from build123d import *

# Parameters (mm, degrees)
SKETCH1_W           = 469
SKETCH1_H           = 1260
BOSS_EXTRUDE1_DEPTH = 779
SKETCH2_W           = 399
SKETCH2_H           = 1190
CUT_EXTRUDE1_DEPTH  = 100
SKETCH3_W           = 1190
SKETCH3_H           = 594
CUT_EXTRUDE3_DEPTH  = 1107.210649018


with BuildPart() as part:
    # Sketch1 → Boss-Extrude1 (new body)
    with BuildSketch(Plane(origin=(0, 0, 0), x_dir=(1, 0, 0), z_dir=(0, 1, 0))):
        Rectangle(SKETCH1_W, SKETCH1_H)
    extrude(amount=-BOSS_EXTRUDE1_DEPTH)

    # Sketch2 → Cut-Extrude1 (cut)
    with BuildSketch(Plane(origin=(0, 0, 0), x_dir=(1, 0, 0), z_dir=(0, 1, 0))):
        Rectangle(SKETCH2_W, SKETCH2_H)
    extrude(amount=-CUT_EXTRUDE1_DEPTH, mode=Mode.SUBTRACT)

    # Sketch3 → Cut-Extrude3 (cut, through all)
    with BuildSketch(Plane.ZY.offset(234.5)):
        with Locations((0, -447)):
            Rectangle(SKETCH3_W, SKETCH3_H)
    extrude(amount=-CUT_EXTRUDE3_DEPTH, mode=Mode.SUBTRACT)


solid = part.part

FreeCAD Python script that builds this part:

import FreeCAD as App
import Part
import Sketcher

V = App.Vector
Q = App.Units.Quantity

doc = App.newDocument("Part")
body = doc.addObject("PartDesign::Body", "Body")

# Sketch on XZ plane
sketch1 = body.newObject("Sketcher::SketchObject", "Sketch")
sketch1.AttachmentSupport = (doc.getObject("XZ_Plane"), [""])
sketch1.MapMode = "FlatFace"
sketch1.addGeometry(Part.LineSegment(V(-234, -630, 0), V(-234, 630, 0)), False)
sketch1.addGeometry(Part.LineSegment(V(-234, 630, 0), V(234, 630, 0)), False)
sketch1.addGeometry(Part.LineSegment(V(234, 630, 0), V(234, -630, 0)), False)
sketch1.addGeometry(Part.LineSegment(V(234, -630, 0), V(-234, -630, 0)), False)
sketch1.addConstraint(Sketcher.Constraint("Coincident", 0, 2, 1, 1))
sketch1.addConstraint(Sketcher.Constraint("Coincident", 1, 2, 2, 1))
sketch1.addConstraint(Sketcher.Constraint("Coincident", 2, 2, 3, 1))
sketch1.addConstraint(Sketcher.Constraint("Coincident", 3, 2, 0, 1))
sketch1.addConstraint(Sketcher.Constraint("Vertical", 0))
sketch1.addConstraint(Sketcher.Constraint("Horizontal", 1))
sketch1.addConstraint(Sketcher.Constraint("Vertical", 2))
sketch1.addConstraint(Sketcher.Constraint("Horizontal", 3))
sketch1.addConstraint(Sketcher.Constraint("Symmetric", 0, 2, 2, 2, -1, 1))
sketch1.addConstraint(Sketcher.Constraint("DistanceX", 1, 1, 1, 2, Q("469 mm")))
sketch1.addConstraint(Sketcher.Constraint("DistanceY", 0, 1, 0, 2, Q("1260 mm")))
pad1 = body.newObject("PartDesign::Pad", "Pad")
pad1.Profile = sketch1
pad1.Length = 779

# Sketch on XZ plane
sketch2 = body.newObject("Sketcher::SketchObject", "Sketch001")
sketch2.AttachmentSupport = (doc.getObject("XZ_Plane"), [""])
sketch2.MapMode = "FlatFace"
sketch2.addGeometry(Part.LineSegment(V(-200, -595, 0), V(-200, 595, 0)), False)
sketch2.addGeometry(Part.LineSegment(V(-200, 595, 0), V(200, 595, 0)), False)
sketch2.addGeometry(Part.LineSegment(V(200, 595, 0), V(200, -595, 0)), False)
sketch2.addGeometry(Part.LineSegment(V(200, -595, 0), V(-200, -595, 0)), False)
sketch2.addConstraint(Sketcher.Constraint("Coincident", 0, 2, 1, 1))
sketch2.addConstraint(Sketcher.Constraint("Coincident", 1, 2, 2, 1))
sketch2.addConstraint(Sketcher.Constraint("Coincident", 2, 2, 3, 1))
sketch2.addConstraint(Sketcher.Constraint("Coincident", 3, 2, 0, 1))
sketch2.addConstraint(Sketcher.Constraint("Vertical", 0))
sketch2.addConstraint(Sketcher.Constraint("Horizontal", 1))
sketch2.addConstraint(Sketcher.Constraint("Vertical", 2))
sketch2.addConstraint(Sketcher.Constraint("Horizontal", 3))
sketch2.addConstraint(Sketcher.Constraint("Symmetric", 0, 2, 2, 2, -1, 1))
sketch2.addConstraint(Sketcher.Constraint("DistanceX", 1, 1, 1, 2, Q("399 mm")))
sketch2.addConstraint(Sketcher.Constraint("DistanceY", 0, 1, 0, 2, Q("1190 mm")))
pocket1 = body.newObject("PartDesign::Pocket", "Pocket")
pocket1.Profile = sketch2
pocket1.Length = 100
pocket1.Reversed = True

# Sketch on YZ plane
sketch3 = body.newObject("Sketcher::SketchObject", "Sketch002")
sketch3.AttachmentSupport = (doc.getObject("YZ_Plane"), [""])
sketch3.MapMode = "FlatFace"
sketch3.AttachmentOffset = App.Placement(V(0, 0, -234.5), App.Rotation())
sketch3.addGeometry(Part.LineSegment(V(-150, -595, 0), V(-744, -595, 0)), False)
sketch3.addGeometry(Part.LineSegment(V(-744, -595, 0), V(-744, 595, 0)), False)
sketch3.addGeometry(Part.LineSegment(V(-744, 595, 0), V(-150, 595, 0)), False)
sketch3.addGeometry(Part.LineSegment(V(-150, 595, 0), V(-150, -595, 0)), False)
sketch3.addConstraint(Sketcher.Constraint("Coincident", 0, 2, 1, 1))
sketch3.addConstraint(Sketcher.Constraint("Coincident", 1, 2, 2, 1))
sketch3.addConstraint(Sketcher.Constraint("Coincident", 2, 2, 3, 1))
sketch3.addConstraint(Sketcher.Constraint("Coincident", 3, 2, 0, 1))
sketch3.addConstraint(Sketcher.Constraint("Horizontal", 0))
sketch3.addConstraint(Sketcher.Constraint("Vertical", 1))
sketch3.addConstraint(Sketcher.Constraint("Horizontal", 2))
sketch3.addConstraint(Sketcher.Constraint("Vertical", 3))
sketch3.addConstraint(Sketcher.Constraint("DistanceX", 0, 2, 0, 1, Q("594 mm")))
sketch3.addConstraint(Sketcher.Constraint("DistanceY", 1, 1, 1, 2, Q("1190 mm")))
sketch3.addConstraint(Sketcher.Constraint("DistanceX", 0, 2, -1, 1, Q("744 mm")))
sketch3.addConstraint(Sketcher.Constraint("DistanceY", 0, 2, -1, 1, Q("595 mm")))
pocket2 = body.newObject("PartDesign::Pocket", "Pocket001")
pocket2.Profile = sketch3
pocket2.Type = "ThroughAll"
pocket2.Reversed = True

doc.recompute()
